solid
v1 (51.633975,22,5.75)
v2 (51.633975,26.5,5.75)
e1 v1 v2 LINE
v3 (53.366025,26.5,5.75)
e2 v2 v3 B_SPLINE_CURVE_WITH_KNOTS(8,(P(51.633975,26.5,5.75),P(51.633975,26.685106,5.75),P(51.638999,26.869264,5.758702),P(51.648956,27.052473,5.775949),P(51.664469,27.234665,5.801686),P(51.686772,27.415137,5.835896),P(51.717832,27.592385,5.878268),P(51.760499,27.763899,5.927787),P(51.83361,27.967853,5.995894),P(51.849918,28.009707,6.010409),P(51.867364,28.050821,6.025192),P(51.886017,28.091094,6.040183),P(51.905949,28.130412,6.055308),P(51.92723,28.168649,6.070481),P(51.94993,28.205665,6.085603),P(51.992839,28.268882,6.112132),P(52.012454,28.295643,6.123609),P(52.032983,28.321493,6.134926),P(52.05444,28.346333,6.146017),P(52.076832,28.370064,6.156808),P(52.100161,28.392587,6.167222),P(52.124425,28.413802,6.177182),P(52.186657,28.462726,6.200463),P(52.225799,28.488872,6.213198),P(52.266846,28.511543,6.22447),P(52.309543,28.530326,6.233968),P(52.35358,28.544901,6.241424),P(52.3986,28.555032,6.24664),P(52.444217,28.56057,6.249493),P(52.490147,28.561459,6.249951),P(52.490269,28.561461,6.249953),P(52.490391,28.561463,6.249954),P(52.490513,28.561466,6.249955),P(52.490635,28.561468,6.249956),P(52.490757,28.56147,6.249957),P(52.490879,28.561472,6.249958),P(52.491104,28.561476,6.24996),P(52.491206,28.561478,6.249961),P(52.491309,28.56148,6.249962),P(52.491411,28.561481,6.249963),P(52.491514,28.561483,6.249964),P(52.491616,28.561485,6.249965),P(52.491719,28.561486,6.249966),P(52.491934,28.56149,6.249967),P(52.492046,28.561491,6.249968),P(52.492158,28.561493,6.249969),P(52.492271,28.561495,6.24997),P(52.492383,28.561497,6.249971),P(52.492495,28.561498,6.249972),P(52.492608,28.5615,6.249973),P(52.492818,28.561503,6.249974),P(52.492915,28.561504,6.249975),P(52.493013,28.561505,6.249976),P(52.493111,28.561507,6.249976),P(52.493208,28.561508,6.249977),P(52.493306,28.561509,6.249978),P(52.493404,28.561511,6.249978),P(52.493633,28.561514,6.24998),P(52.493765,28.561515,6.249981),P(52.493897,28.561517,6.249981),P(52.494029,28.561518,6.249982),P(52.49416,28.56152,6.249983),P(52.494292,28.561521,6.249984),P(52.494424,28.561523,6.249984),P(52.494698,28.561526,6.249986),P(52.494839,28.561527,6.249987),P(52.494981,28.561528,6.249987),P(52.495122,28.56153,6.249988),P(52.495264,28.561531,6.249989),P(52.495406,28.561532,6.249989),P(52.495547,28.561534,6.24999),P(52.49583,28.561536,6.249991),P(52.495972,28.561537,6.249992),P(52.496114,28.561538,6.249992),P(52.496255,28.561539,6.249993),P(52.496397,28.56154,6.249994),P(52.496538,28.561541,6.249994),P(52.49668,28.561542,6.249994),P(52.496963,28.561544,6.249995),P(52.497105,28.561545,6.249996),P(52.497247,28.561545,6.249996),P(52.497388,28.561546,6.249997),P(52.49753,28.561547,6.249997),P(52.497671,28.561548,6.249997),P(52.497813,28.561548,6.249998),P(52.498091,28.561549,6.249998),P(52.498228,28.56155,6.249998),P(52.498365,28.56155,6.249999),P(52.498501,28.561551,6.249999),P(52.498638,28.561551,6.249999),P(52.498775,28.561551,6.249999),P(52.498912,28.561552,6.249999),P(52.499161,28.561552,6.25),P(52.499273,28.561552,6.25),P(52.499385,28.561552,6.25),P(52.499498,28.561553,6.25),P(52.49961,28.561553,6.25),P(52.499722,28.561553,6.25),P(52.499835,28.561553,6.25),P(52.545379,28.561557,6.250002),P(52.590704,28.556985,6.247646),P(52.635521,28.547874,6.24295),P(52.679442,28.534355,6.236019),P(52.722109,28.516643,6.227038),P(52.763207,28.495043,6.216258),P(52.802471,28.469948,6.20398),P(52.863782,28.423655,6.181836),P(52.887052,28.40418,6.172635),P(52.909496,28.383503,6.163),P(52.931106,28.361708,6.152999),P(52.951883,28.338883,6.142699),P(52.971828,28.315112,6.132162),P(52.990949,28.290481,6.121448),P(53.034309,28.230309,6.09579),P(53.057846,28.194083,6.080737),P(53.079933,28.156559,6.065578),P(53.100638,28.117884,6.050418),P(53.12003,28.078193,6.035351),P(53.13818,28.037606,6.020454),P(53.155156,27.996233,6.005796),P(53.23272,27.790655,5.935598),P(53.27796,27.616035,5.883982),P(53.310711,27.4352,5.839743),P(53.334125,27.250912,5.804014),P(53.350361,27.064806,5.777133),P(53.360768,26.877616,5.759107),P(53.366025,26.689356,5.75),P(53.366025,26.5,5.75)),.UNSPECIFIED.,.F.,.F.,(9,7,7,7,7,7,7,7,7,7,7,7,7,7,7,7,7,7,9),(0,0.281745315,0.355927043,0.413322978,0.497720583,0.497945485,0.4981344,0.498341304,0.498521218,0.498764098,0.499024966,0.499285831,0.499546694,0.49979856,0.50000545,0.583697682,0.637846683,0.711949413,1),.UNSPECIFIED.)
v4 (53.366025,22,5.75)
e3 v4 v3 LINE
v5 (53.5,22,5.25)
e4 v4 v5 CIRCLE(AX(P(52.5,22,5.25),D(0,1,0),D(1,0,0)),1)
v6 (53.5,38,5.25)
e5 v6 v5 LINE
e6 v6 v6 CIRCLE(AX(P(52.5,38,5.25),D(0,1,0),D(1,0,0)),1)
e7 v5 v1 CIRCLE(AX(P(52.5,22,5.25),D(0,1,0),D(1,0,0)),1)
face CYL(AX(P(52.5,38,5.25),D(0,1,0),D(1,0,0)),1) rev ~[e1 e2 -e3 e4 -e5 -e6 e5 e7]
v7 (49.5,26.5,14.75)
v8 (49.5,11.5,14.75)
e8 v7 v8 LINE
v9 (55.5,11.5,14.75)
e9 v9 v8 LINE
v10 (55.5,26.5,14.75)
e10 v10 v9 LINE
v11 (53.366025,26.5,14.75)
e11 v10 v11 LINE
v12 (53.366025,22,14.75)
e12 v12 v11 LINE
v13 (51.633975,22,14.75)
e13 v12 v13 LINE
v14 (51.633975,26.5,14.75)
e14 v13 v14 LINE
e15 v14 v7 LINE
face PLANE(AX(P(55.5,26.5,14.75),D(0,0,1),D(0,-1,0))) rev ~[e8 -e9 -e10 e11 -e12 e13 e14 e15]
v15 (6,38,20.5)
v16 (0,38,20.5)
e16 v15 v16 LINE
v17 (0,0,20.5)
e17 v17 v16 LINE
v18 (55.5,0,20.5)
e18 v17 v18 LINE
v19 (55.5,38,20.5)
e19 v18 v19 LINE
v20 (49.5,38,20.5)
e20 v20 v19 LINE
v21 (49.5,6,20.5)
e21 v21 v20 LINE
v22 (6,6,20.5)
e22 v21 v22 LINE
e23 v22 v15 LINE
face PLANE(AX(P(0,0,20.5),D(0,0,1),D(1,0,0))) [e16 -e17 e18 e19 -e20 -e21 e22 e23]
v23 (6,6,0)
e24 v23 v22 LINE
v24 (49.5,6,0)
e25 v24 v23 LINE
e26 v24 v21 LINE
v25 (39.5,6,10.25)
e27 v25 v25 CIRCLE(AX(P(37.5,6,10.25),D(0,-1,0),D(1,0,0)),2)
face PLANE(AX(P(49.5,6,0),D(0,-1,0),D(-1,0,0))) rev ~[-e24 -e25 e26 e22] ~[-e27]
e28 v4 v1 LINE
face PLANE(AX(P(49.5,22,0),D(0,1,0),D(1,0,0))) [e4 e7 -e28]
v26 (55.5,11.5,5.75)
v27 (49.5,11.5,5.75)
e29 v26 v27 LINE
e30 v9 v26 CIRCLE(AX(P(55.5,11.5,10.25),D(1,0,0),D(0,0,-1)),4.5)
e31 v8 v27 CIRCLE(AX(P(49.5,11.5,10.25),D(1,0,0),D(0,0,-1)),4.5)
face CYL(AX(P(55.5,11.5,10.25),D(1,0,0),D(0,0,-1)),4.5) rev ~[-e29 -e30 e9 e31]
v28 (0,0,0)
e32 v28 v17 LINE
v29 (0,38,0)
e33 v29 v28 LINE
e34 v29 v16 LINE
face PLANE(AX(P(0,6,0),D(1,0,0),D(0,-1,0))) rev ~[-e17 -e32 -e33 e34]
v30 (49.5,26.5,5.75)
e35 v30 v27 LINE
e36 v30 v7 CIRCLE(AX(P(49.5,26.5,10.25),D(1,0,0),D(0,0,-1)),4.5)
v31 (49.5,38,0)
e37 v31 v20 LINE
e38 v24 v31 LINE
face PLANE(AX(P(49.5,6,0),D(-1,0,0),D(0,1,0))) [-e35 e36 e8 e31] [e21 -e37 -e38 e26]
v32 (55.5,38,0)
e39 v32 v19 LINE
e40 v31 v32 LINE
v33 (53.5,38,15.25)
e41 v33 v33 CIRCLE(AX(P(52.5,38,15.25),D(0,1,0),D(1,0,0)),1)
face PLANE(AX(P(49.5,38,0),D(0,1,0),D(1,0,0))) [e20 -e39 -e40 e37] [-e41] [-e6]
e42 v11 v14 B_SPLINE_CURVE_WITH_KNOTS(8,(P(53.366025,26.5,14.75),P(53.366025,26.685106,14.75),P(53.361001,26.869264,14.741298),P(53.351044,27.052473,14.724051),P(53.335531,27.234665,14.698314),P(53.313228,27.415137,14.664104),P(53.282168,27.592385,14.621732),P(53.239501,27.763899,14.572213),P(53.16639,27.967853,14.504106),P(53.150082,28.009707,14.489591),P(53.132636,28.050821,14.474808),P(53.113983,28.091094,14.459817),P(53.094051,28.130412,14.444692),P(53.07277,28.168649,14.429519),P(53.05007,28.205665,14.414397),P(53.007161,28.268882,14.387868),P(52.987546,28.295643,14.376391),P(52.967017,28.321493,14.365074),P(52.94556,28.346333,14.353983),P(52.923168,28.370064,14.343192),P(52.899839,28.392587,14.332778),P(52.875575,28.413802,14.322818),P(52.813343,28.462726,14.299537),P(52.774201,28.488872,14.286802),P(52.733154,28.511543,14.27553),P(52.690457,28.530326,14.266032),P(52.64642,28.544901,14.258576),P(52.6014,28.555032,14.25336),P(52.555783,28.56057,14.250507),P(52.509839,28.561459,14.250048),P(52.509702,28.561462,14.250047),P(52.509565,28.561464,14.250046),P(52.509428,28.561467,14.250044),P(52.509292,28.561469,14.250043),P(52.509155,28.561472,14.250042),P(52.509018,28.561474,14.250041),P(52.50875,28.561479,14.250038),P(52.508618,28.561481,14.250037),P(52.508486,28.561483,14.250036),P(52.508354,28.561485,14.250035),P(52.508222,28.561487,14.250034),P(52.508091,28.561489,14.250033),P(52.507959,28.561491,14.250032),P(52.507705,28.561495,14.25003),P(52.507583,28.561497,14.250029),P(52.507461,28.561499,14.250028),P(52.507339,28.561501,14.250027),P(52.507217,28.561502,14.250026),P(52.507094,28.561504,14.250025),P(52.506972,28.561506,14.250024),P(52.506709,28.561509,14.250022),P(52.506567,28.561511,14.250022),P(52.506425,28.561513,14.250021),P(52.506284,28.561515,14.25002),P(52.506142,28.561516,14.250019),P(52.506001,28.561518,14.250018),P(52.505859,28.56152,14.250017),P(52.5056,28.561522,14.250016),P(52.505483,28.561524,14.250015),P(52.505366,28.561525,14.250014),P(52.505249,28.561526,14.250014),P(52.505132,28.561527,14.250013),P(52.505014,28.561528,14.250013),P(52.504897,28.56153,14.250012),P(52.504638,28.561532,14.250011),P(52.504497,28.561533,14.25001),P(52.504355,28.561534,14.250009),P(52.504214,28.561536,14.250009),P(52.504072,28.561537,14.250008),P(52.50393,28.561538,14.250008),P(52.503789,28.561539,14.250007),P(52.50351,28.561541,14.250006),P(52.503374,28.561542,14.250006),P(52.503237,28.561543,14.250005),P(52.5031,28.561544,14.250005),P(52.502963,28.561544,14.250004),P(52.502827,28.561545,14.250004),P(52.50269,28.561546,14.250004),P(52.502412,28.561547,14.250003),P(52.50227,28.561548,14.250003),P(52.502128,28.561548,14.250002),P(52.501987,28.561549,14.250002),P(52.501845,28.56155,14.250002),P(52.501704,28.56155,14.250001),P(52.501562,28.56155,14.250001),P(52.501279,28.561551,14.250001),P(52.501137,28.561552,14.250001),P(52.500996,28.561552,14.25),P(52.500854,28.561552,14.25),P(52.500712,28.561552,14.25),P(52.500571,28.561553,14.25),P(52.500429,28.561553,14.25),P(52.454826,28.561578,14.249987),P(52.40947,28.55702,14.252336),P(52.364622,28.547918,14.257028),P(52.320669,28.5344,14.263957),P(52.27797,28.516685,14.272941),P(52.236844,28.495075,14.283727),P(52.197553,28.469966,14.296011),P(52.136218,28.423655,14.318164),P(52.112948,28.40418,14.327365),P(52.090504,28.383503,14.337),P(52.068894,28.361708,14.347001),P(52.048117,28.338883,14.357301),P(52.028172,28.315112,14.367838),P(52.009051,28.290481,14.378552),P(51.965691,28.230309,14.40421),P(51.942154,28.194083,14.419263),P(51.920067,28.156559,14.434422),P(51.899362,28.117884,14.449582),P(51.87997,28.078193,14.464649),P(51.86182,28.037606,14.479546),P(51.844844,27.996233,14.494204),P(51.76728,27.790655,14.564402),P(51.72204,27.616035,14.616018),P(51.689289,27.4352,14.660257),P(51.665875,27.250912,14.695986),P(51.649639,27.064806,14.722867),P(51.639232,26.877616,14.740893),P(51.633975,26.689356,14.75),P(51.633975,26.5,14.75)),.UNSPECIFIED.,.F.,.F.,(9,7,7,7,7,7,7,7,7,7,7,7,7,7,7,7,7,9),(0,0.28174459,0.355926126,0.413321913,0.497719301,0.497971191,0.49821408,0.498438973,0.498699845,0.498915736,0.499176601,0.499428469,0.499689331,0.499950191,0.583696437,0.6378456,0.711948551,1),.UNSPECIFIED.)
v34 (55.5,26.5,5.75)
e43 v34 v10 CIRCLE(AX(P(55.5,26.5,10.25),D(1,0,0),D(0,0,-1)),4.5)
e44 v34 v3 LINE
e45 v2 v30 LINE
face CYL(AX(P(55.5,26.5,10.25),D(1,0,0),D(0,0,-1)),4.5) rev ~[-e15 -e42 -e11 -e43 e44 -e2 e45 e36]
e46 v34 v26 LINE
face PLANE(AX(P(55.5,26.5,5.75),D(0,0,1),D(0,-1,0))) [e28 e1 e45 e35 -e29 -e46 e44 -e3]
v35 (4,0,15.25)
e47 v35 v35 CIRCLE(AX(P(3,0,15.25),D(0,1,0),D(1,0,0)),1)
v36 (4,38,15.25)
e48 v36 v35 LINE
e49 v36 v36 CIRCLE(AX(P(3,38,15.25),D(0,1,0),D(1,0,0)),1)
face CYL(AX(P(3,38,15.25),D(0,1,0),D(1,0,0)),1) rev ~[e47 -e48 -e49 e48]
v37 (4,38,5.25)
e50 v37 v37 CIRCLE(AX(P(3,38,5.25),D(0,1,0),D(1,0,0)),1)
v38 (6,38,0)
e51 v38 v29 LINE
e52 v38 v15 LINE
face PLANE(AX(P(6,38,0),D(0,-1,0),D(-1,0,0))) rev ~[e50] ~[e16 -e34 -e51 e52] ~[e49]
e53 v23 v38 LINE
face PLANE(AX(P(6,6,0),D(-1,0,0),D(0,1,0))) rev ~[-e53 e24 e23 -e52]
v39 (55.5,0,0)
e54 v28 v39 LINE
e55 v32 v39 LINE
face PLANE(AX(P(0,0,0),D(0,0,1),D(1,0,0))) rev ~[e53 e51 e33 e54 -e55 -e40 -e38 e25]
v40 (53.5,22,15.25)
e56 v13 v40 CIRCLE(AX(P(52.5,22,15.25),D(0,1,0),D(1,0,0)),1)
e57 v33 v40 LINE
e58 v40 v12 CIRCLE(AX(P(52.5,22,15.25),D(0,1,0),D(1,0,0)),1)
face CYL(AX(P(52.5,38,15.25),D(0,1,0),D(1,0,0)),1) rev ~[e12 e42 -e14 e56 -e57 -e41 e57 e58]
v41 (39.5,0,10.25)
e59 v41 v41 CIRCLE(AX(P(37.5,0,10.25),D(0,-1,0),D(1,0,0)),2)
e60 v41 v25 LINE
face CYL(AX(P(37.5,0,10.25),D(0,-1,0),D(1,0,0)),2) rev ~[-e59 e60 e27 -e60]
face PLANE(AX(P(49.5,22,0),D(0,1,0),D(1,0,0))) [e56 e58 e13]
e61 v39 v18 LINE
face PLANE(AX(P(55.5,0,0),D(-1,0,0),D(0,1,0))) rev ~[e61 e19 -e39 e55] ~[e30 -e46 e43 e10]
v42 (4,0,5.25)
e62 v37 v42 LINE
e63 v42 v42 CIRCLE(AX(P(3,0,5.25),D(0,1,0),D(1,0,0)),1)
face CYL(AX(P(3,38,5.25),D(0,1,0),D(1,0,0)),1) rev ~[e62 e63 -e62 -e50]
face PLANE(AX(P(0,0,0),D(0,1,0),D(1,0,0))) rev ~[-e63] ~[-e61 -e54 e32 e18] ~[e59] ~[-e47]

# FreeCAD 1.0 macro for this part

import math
import FreeCAD as App
import Part
import Sketcher

V = App.Vector
Q = App.Units.Quantity

doc = App.newDocument("Part")
body = doc.addObject("PartDesign::Body", "Body")

# Sketch on XY plane
sketch1 = body.newObject("Sketcher::SketchObject", "Sketch")
sketch1.AttachmentSupport = (doc.getObject("XY_Plane"), [""])
sketch1.MapMode = "FlatFace"
sketch1.addGeometry([
    Part.LineSegment(V(0, 0, 0), V(55.5, 0, 0)),  # 0
    Part.LineSegment(V(55.5, 0, 0), V(55.5, 38, 0)),  # 1
    Part.LineSegment(V(55.5, 38, 0), V(49.5, 38, 0)),  # 2
    Part.LineSegment(V(49.5, 38, 0), V(49.5, 6, 0)),  # 3
    Part.LineSegment(V(49.5, 6, 0), V(6, 6, 0)),  # 4
    Part.LineSegment(V(6, 6, 0), V(6, 38, 0)),  # 5
    Part.LineSegment(V(6, 38, 0), V(0, 38, 0)),  # 6
    Part.LineSegment(V(0, 38, 0), V(0, 0, 0)),  # 7
], False)
sketch1.addConstraint([
    Sketcher.Constraint("Coincident", 0, 2, 1, 1),
    Sketcher.Constraint("Coincident", 1, 2, 2, 1),
    Sketcher.Constraint("Coincident", 2, 2, 3, 1),
    Sketcher.Constraint("Coincident", 3, 2, 4, 1),
    Sketcher.Constraint("Coincident", 4, 2, 5, 1),
    Sketcher.Constraint("Coincident", 5, 2, 6, 1),
    Sketcher.Constraint("Coincident", 6, 2, 7, 1),
    Sketcher.Constraint("Coincident", 7, 2, 0, 1),
    Sketcher.Constraint("Horizontal", 0),
    Sketcher.Constraint("Vertical", 1),
    Sketcher.Constraint("Horizontal", 2),
    Sketcher.Constraint("Vertical", 3),
    Sketcher.Constraint("Horizontal", 4),
    Sketcher.Constraint("Vertical", 5),
    Sketcher.Constraint("Horizontal", 6),
    Sketcher.Constraint("Vertical", 7),
    Sketcher.Constraint("Coincident", 7, 2, -1, 1),
    Sketcher.Constraint("Horizontal", 2, 2, 5, 2),
    Sketcher.Constraint("Equal", 2, 6),
    Sketcher.Constraint("DistanceX", 2, 2, 2, 1, Q("6 mm")),
    Sketcher.Constraint("DistanceY", 1, 1, 1, 2, Q("38 mm")),
    Sketcher.Constraint("DistanceX", 0, 1, 0, 2, Q("55.5 mm")),
    Sketcher.Constraint("DistanceY", -1, 1, 3, 2, Q("6 mm")),
])
pad1 = body.newObject("PartDesign::Pad", "Pad")
pad1.Profile = sketch1
pad1.Length = 20.5

# Sketch on YZ plane
sketch2 = body.newObject("Sketcher::SketchObject", "Sketch001")
sketch2.AttachmentSupport = (doc.getObject("YZ_Plane"), [""])
sketch2.MapMode = "FlatFace"
sketch2.AttachmentOffset = App.Placement(V(0, 0, 55.5), App.Rotation())
sketch2.addGeometry([
    Part.ArcOfCircle(Part.Circle(V(26.5, 10.25, 0), V(0, 0, 1), 4.5), math.radians(-90), math.radians(90)),
    Part.LineSegment(V(26.5, 14.75, 0), V(11.5, 14.75, 0)),
    Part.ArcOfCircle(Part.Circle(V(11.5, 10.25, 0), V(0, 0, 1), 4.5), math.radians(90), math.radians(270)),
    Part.LineSegment(V(11.5, 5.75, 0), V(26.5, 5.75, 0)),
], False)
sketch2.addConstraint([
    Sketcher.Constraint("Tangent", 0, 2, 1, 1),
    Sketcher.Constraint("Tangent", 1, 2, 2, 1),
    Sketcher.Constraint("Tangent", 2, 2, 3, 1),
    Sketcher.Constraint("Tangent", 3, 2, 0, 1),
    Sketcher.Constraint("Horizontal", 1),
    Sketcher.Constraint("Horizontal", 3),
    Sketcher.Constraint("Radius", 0, Q("4.5 mm")),
    Sketcher.Constraint("DistanceX", -1, 1, 2, 3, Q("11.5 mm")),
    Sketcher.Constraint("DistanceX", 1, 2, 1, 1, Q("15 mm")),
    Sketcher.Constraint("DistanceY", -1, 1, 0, 3, Q("10.25 mm")),
])
pocket1 = body.newObject("PartDesign::Pocket", "Pocket")
pocket1.Profile = sketch2
pocket1.Type = "UpToFirst"

# Sketch on XZ plane
sketch3 = body.newObject("Sketcher::SketchObject", "Sketch002")
sketch3.AttachmentSupport = (doc.getObject("XZ_Plane"), [""])
sketch3.MapMode = "FlatFace"
sketch3.addGeometry(Part.Circle(V(37.5, 10.25, 0), V(0, 0, 1), 2), False)
sketch3.addConstraint([
    Sketcher.Constraint("Diameter", 0, Q("4 mm")),
    Sketcher.Constraint("DistanceX", -1, 1, 0, 3, Q("37.5 mm")),
    Sketcher.Constraint("DistanceY", -1, 1, 0, 3, Q("10.25 mm")),
])
pocket2 = body.newObject("PartDesign::Pocket", "Pocket001")
pocket2.Profile = sketch3
pocket2.Type = "UpToFirst"

# Sketch on XZ plane
sketch4 = body.newObject("Sketcher::SketchObject", "Sketch003")
sketch4.AttachmentSupport = (doc.getObject("XZ_Plane"), [""])
sketch4.MapMode = "FlatFace"
sketch4.AttachmentOffset = App.Placement(V(0, 0, -38), App.Rotation())
sketch4.addGeometry([
    Part.Circle(V(52.5, 15.25, 0), V(0, 0, 1), 1),
    Part.Circle(V(52.5, 5.25, 0), V(0, 0, 1), 1),
], False)
sketch4.addConstraint([
    Sketcher.Constraint("Equal", 0, 1),
    Sketcher.Constraint("Vertical", 0, 3, 1, 3),
    Sketcher.Constraint("Diameter", 0, Q("2 mm")),
    Sketcher.Constraint("DistanceY", 1, 3, 0, 3, Q("10 mm")),
    Sketcher.Constraint("DistanceX", -1, 1, 0, 3, Q("52.5 mm")),
    Sketcher.Constraint("DistanceY", -1, 1, 0, 3, Q("15.25 mm")),
])
pocket3 = body.newObject("PartDesign::Pocket", "Pocket002")
pocket3.Profile = sketch4
pocket3.Length = 16
pocket3.Reversed = True

# Sketch on XZ plane
sketch5 = body.newObject("Sketcher::SketchObject", "Sketch004")
sketch5.AttachmentSupport = (doc.getObject("XZ_Plane"), [""])
sketch5.MapMode = "FlatFace"
sketch5.AttachmentOffset = App.Placement(V(0, 0, -38), App.Rotation())
sketch5.addGeometry([
    Part.Circle(V(3, 5.25, 0), V(0, 0, 1), 1),
    Part.Circle(V(3, 15.25, 0), V(0, 0, 1), 1),
], False)
sketch5.addConstraint([
    Sketcher.Constraint("Equal", 0, 1),
    Sketcher.Constraint("Vertical", 0, 3, 1, 3),
    Sketcher.Constraint("Diameter", 0, Q("2 mm")),
    Sketcher.Constraint("DistanceX", -1, 1, 0, 3, Q("3 mm")),
    Sketcher.Constraint("DistanceY", 0, 3, 1, 3, Q("10 mm")),
    Sketcher.Constraint("DistanceY", -1, 1, 0, 3, Q("5.25 mm")),
])
pocket4 = body.newObject("PartDesign::Pocket", "Pocket003")
pocket4.Profile = sketch5
pocket4.Type = "UpToFirst"
pocket4.Reversed = True

doc.recompute()
